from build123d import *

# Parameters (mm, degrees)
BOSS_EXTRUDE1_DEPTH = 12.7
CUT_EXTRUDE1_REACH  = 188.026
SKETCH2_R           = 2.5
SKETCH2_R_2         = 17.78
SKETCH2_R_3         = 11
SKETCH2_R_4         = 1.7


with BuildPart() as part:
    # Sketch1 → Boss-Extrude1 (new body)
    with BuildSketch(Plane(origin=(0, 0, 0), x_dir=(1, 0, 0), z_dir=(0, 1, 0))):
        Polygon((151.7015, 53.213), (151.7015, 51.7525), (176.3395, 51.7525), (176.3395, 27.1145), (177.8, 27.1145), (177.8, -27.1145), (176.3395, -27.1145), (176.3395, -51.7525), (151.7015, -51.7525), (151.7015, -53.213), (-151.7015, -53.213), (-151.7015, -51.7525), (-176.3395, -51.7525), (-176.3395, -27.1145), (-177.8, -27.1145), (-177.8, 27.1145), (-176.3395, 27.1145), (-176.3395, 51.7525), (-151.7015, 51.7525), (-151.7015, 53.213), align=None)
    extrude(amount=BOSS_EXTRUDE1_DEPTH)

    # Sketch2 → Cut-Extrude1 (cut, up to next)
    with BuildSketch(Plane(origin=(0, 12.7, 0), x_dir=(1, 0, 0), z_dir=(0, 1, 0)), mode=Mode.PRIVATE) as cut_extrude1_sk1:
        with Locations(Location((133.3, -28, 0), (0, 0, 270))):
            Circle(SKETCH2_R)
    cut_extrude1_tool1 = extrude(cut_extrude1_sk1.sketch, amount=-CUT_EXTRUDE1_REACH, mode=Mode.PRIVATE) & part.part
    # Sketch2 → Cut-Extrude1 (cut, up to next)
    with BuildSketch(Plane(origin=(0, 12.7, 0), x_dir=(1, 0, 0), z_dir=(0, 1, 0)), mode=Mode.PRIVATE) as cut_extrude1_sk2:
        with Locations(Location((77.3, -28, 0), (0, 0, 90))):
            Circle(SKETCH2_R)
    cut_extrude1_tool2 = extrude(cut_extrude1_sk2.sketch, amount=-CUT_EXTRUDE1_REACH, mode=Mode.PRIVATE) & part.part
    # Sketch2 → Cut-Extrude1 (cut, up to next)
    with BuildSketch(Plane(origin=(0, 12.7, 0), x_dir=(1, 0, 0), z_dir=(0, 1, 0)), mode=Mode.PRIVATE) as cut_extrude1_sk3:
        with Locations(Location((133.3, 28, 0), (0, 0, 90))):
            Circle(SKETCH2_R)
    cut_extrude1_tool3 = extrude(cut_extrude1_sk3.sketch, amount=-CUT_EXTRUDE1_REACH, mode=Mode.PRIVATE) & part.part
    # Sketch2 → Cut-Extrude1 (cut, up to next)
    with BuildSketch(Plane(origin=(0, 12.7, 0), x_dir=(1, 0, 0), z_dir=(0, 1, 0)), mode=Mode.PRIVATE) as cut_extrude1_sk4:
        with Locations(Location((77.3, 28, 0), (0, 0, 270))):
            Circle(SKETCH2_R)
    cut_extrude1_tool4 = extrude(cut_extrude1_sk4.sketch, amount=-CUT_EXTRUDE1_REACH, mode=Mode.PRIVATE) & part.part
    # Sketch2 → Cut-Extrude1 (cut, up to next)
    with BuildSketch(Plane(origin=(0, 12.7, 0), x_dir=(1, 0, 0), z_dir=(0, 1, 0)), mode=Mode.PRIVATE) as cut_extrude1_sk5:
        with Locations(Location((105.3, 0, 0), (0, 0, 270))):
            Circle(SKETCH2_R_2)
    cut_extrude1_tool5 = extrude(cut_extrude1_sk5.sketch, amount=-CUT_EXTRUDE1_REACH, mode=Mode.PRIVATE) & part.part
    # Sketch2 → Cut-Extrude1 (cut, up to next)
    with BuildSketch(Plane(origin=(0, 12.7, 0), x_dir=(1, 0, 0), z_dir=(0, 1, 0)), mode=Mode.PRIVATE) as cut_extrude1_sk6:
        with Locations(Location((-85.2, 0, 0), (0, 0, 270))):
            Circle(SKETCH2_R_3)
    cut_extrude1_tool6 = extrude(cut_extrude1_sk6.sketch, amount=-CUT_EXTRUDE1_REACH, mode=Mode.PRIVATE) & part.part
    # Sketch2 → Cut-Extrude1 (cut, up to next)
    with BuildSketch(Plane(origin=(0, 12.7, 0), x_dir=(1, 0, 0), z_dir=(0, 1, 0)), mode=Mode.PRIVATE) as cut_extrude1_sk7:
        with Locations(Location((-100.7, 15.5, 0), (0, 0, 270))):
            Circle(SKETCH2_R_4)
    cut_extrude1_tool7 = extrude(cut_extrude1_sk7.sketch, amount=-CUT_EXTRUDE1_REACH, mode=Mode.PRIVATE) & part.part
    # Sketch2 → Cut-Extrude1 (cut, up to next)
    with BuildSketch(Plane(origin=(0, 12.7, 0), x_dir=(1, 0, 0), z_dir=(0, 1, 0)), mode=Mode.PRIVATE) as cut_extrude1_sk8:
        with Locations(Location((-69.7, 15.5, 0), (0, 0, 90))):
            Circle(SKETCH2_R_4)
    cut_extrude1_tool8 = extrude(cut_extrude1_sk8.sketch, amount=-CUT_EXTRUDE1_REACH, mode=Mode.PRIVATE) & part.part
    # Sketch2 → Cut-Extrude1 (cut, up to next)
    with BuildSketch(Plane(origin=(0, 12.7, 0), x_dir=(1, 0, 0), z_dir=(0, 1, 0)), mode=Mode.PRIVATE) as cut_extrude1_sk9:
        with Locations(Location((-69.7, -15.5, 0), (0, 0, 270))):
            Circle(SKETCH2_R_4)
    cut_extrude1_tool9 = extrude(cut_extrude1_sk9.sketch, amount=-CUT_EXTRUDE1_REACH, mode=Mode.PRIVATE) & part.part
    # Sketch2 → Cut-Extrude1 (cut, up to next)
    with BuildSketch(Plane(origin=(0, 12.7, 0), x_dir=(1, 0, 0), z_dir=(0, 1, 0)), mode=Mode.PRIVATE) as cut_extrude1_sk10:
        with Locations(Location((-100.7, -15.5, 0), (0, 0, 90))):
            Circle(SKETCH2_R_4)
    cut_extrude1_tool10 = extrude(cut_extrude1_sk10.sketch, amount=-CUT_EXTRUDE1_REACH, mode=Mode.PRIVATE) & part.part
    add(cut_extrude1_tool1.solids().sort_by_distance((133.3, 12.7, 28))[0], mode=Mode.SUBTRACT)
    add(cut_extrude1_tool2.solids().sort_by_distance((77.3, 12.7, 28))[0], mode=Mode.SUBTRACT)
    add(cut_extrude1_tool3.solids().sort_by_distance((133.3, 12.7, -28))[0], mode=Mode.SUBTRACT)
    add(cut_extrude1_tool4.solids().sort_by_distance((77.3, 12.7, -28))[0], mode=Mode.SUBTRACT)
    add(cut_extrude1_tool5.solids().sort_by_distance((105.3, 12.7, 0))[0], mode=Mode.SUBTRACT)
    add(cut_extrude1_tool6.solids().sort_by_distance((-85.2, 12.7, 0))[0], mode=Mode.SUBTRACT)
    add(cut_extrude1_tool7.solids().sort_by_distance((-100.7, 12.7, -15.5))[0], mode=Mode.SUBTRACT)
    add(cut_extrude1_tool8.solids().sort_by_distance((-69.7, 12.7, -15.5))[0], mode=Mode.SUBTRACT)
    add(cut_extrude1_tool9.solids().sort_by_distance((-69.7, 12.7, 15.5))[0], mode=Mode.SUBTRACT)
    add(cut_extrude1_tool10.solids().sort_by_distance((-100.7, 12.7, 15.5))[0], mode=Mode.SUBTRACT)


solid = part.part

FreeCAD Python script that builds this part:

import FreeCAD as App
import Part
import Sketcher
from FreeCAD import Vector
Q = App.Units.Quantity


def add_polygon(sketch, points):
    """Adds a closed chain of lines whose ends are joined by coincident constraints."""
    first, n = sketch.GeometryCount, len(points)
    for a, b in zip(points, points[1:] + points[:1]):
        sketch.addGeometry(Part.LineSegment(App.Vector(*a, 0), App.Vector(*b, 0)), False)
    for i in range(n):
        sketch.addConstraint(Sketcher.Constraint("Coincident", first + i, 2, first + (i + 1) % n, 1))

doc = App.newDocument("Part")
body = doc.addObject("PartDesign::Body", "Body")

# Sketch on XZ plane
sketch1 = body.newObject("Sketcher::SketchObject", "Sketch")
sketch1.AttachmentSupport = (doc.getObject("XZ_Plane"), [""])
sketch1.MapMode = "FlatFace"
add_polygon(sketch1, [(151.7, -51.8), (151.7, -53.2), (-151.7, -53.2), (-151.7, -51.8), (-176.3, -51.8), (-176.3, -27.1), (-177.8, -27.1), (-177.8, 27.1), (-176.3, 27.1), (-176.3, 51.8), (-151.7, 51.8), (-151.7, 53.2), (151.7, 53.2), (151.7, 51.8), (176.3, 51.8), (176.3, 27.1), (177.8, 27.1), (177.8, -27.1), (176.3, -27.1), (176.3, -51.8)])  # lines 0-19
sketch1.addConstraint(Sketcher.Constraint("Vertical", 0))
sketch1.addConstraint(Sketcher.Constraint("Horizontal", 1))
sketch1.addConstraint(Sketcher.Constraint("Vertical", 2))
sketch1.addConstraint(Sketcher.Constraint("Horizontal", 3))
sketch1.addConstraint(Sketcher.Constraint("Vertical", 4))
sketch1.addConstraint(Sketcher.Constraint("Horizontal", 5))
sketch1.addConstraint(Sketcher.Constraint("Vertical", 6))
sketch1.addConstraint(Sketcher.Constraint("Horizontal", 7))
sketch1.addConstraint(Sketcher.Constraint("Vertical", 8))
sketch1.addConstraint(Sketcher.Constraint("Horizontal", 9))
sketch1.addConstraint(Sketcher.Constraint("Vertical", 10))
sketch1.addConstraint(Sketcher.Constraint("Horizontal", 11))
sketch1.addConstraint(Sketcher.Constraint("Vertical", 12))
sketch1.addConstraint(Sketcher.Constraint("Horizontal", 13))
sketch1.addConstraint(Sketcher.Constraint("Vertical", 14))
sketch1.addConstraint(Sketcher.Constraint("Horizontal", 15))
sketch1.addConstraint(Sketcher.Constraint("Vertical", 16))
sketch1.addConstraint(Sketcher.Constraint("Horizontal", 17))
sketch1.addConstraint(Sketcher.Constraint("Vertical", 18))
sketch1.addConstraint(Sketcher.Constraint("Horizontal", 19))
sketch1.addConstraint(Sketcher.Constraint("Symmetric", 0, 2, 10, 2, -1, 1))
sketch1.addConstraint(Sketcher.Constraint("Symmetric", 2, 2, 12, 2, -1, 1))
sketch1.addConstraint(Sketcher.Constraint("Symmetric", 4, 2, 14, 2, -1, 1))
sketch1.addConstraint(Sketcher.Constraint("Symmetric", 6, 2, 16, 2, -1, 1))
sketch1.addConstraint(Sketcher.Constraint("Symmetric", 8, 2, 18, 2, -1, 1))
sketch1.addConstraint(Sketcher.Constraint("Symmetric", 9, 2, 12, 2, -2))
sketch1.addConstraint(Sketcher.Constraint("Symmetric", 7, 2, 14, 2, -2))
sketch1.addConstraint(Sketcher.Constraint("Equal", 17, 0))
sketch1.addConstraint(Sketcher.Constraint("Equal", 19, 4))
sketch1.addConstraint(Sketcher.Constraint("DistanceX", 5, 2, -1, 1, Q("7 in")))
sketch1.addConstraint(Sketcher.Constraint("DistanceX", 3, 2, 3, 1, Q("0.97 in")))
sketch1.addConstraint(Sketcher.Constraint("DistanceX", 1, 2, 1, 1, Q("11.945 in")))
sketch1.addConstraint(Sketcher.Constraint("DistanceY", 6, 1, 6, 2, Q("2.135 in")))
pad1 = body.newObject("PartDesign::Pad", "Pad")
pad1.Profile = sketch1
pad1.Length = Q("0.5 in")
pad1.Reversed = True

# Sketch on XZ plane
sketch2 = body.newObject("Sketcher::SketchObject", "Sketch001")
sketch2.AttachmentSupport = (doc.getObject("XZ_Plane"), [""])
sketch2.MapMode = "FlatFace"
sketch2.AttachmentOffset = App.Placement(Vector(0, 0, -0.5 * 25.4), App.Rotation())
sketch2.addGeometry(Part.Circle(Vector(133.3, 28, 0), Vector(0, 0, 1), 2.5), False)
sketch2.addConstraint(Sketcher.Constraint("Diameter", 0, Q("5 mm")))
sketch2.addConstraint(Sketcher.Constraint("DistanceX", -1, 1, 0, 3, Q("133.3 mm")))
sketch2.addConstraint(Sketcher.Constraint("DistanceY", -1, 1, 0, 3, Q("28 mm")))
pocket1 = body.newObject("PartDesign::Pocket", "Pocket")
pocket1.Profile = sketch2
pocket1.Type = "UpToFirst"
pocket1.Reversed = True

# Sketch on XZ plane
sketch3 = body.newObject("Sketcher::SketchObject", "Sketch002")
sketch3.AttachmentSupport = (doc.getObject("XZ_Plane"), [""])
sketch3.MapMode = "FlatFace"
sketch3.AttachmentOffset = App.Placement(Vector(0, 0, -0.5 * 25.4), App.Rotation())
sketch3.addGeometry(Part.Circle(Vector(77.3, 28, 0), Vector(0, 0, 1), 2.5), False)
sketch3.addConstraint(Sketcher.Constraint("Diameter", 0, Q("5 mm")))
sketch3.addConstraint(Sketcher.Constraint("DistanceX", -1, 1, 0, 3, Q("77.3 mm")))
sketch3.addConstraint(Sketcher.Constraint("DistanceY", -1, 1, 0, 3, Q("28 mm")))
pocket2 = body.newObject("PartDesign::Pocket", "Pocket001")
pocket2.Profile = sketch3
pocket2.Type = "UpToFirst"
pocket2.Reversed = True

# Sketch on XZ plane
sketch4 = body.newObject("Sketcher::SketchObject", "Sketch003")
sketch4.AttachmentSupport = (doc.getObject("XZ_Plane"), [""])
sketch4.MapMode = "FlatFace"
sketch4.AttachmentOffset = App.Placement(Vector(0, 0, -0.5 * 25.4), App.Rotation())
sketch4.addGeometry(Part.Circle(Vector(133.3, -28, 0), Vector(0, 0, 1), 2.5), False)
sketch4.addConstraint(Sketcher.Constraint("Diameter", 0, Q("5 mm")))
sketch4.addConstraint(Sketcher.Constraint("DistanceX", -1, 1, 0, 3, Q("133.3 mm")))
sketch4.addConstraint(Sketcher.Constraint("DistanceY", 0, 3, -1, 1, Q("28 mm")))
pocket3 = body.newObject("PartDesign::Pocket", "Pocket002")
pocket3.Profile = sketch4
pocket3.Type = "UpToFirst"
pocket3.Reversed = True

# Sketch on XZ plane
sketch5 = body.newObject("Sketcher::SketchObject", "Sketch004")
sketch5.AttachmentSupport = (doc.getObject("XZ_Plane"), [""])
sketch5.MapMode = "FlatFace"
sketch5.AttachmentOffset = App.Placement(Vector(0, 0, -0.5 * 25.4), App.Rotation())
sketch5.addGeometry(Part.Circle(Vector(77.3, -28, 0), Vector(0, 0, 1), 2.5), False)
sketch5.addConstraint(Sketcher.Constraint("Diameter", 0, Q("5 mm")))
sketch5.addConstraint(Sketcher.Constraint("DistanceX", -1, 1, 0, 3, Q("77.3 mm")))
sketch5.addConstraint(Sketcher.Constraint("DistanceY", 0, 3, -1, 1, Q("28 mm")))
pocket4 = body.newObject("PartDesign::Pocket", "Pocket003")
pocket4.Profile = sketch5
pocket4.Type = "UpToFirst"
pocket4.Reversed = True

# Sketch on XZ plane
sketch6 = body.newObject("Sketcher::SketchObject", "Sketch005")
sketch6.AttachmentSupport = (doc.getObject("XZ_Plane"), [""])
sketch6.MapMode = "FlatFace"
sketch6.AttachmentOffset = App.Placement(Vector(0, 0, -0.5 * 25.4), App.Rotation())
sketch6.addGeometry(Part.Circle(Vector(105, 0, 0), Vector(0, 0, 1), 18), False)
sketch6.addConstraint(Sketcher.Constraint("PointOnObject", 0, 3, -1))
sketch6.addConstraint(Sketcher.Constraint("Diameter", 0, Q("1.4 in")))
sketch6.addConstraint(Sketcher.Constraint("DistanceX", -1, 1, 0, 3, Q("105.3 mm")))
pocket5 = body.newObject("PartDesign::Pocket", "Pocket004")
pocket5.Profile = sketch6
pocket5.Type = "UpToFirst"
pocket5.Reversed = True

# Sketch on XZ plane
sketch7 = body.newObject("Sketcher::SketchObject", "Sketch006")
sketch7.AttachmentSupport = (doc.getObject("XZ_Plane"), [""])
sketch7.MapMode = "FlatFace"
sketch7.AttachmentOffset = App.Placement(Vector(0, 0, -0.5 * 25.4), App.Rotation())
sketch7.addGeometry(Part.Circle(Vector(-85, 0, 0), Vector(0, 0, 1), 11), False)
sketch7.addConstraint(Sketcher.Constraint("PointOnObject", 0, 3, -1))
sketch7.addConstraint(Sketcher.Constraint("Diameter", 0, Q("22 mm")))
sketch7.addConstraint(Sketcher.Constraint("DistanceX", 0, 3, -1, 1, Q("85.2 mm")))
pocket6 = body.newObject("PartDesign::Pocket", "Pocket005")
pocket6.Profile = sketch7
pocket6.Type = "UpToFirst"
pocket6.Reversed = True

# Sketch on XZ plane
sketch8 = body.newObject("Sketcher::SketchObject", "Sketch007")
sketch8.AttachmentSupport = (doc.getObject("XZ_Plane"), [""])
sketch8.MapMode = "FlatFace"
sketch8.AttachmentOffset = App.Placement(Vector(0, 0, -0.5 * 25.4), App.Rotation())
sketch8.addGeometry(Part.Circle(Vector(-100.7, -15.5, 0), Vector(0, 0, 1), 1.7), False)
sketch8.addConstraint(Sketcher.Constraint("Diameter", 0, Q("3.4 mm")))
sketch8.addConstraint(Sketcher.Constraint("DistanceX", 0, 3, -1, 1, Q("100.7 mm")))
sketch8.addConstraint(Sketcher.Constraint("DistanceY", 0, 3, -1, 1, Q("15.5 mm")))
pocket7 = body.newObject("PartDesign::Pocket", "Pocket006")
pocket7.Profile = sketch8
pocket7.Type = "UpToFirst"
pocket7.Reversed = True

# Sketch on XZ plane
sketch9 = body.newObject("Sketcher::SketchObject", "Sketch008")
sketch9.AttachmentSupport = (doc.getObject("XZ_Plane"), [""])
sketch9.MapMode = "FlatFace"
sketch9.AttachmentOffset = App.Placement(Vector(0, 0, -0.5 * 25.4), App.Rotation())
sketch9.addGeometry(Part.Circle(Vector(-69.7, -15.5, 0), Vector(0, 0, 1), 1.7), False)
sketch9.addConstraint(Sketcher.Constraint("Diameter", 0, Q("3.4 mm")))
sketch9.addConstraint(Sketcher.Constraint("DistanceX", 0, 3, -1, 1, Q("69.7 mm")))
sketch9.addConstraint(Sketcher.Constraint("DistanceY", 0, 3, -1, 1, Q("15.5 mm")))
pocket8 = body.newObject("PartDesign::Pocket", "Pocket007")
pocket8.Profile = sketch9
pocket8.Type = "UpToFirst"
pocket8.Reversed = True

# Sketch on XZ plane
sketch10 = body.newObject("Sketcher::SketchObject", "Sketch009")
sketch10.AttachmentSupport = (doc.getObject("XZ_Plane"), [""])
sketch10.MapMode = "FlatFace"
sketch10.AttachmentOffset = App.Placement(Vector(0, 0, -0.5 * 25.4), App.Rotation())
sketch10.addGeometry(Part.Circle(Vector(-69.7, 15.5, 0), Vector(0, 0, 1), 1.7), False)
sketch10.addConstraint(Sketcher.Constraint("Diameter", 0, Q("3.4 mm")))
sketch10.addConstraint(Sketcher.Constraint("DistanceX", 0, 3, -1, 1, Q("69.7 mm")))
sketch10.addConstraint(Sketcher.Constraint("DistanceY", -1, 1, 0, 3, Q("15.5 mm")))
pocket9 = body.newObject("PartDesign::Pocket", "Pocket008")
pocket9.Profile = sketch10
pocket9.Type = "UpToFirst"
pocket9.Reversed = True

# Sketch on XZ plane
sketch11 = body.newObject("Sketcher::SketchObject", "Sketch010")
sketch11.AttachmentSupport = (doc.getObject("XZ_Plane"), [""])
sketch11.MapMode = "FlatFace"
sketch11.AttachmentOffset = App.Placement(Vector(0, 0, -0.5 * 25.4), App.Rotation())
sketch11.addGeometry(Part.Circle(Vector(-100.7, 15.5, 0), Vector(0, 0, 1), 1.7), False)
sketch11.addConstraint(Sketcher.Constraint("Diameter", 0, Q("3.4 mm")))
sketch11.addConstraint(Sketcher.Constraint("DistanceX", 0, 3, -1, 1, Q("100.7 mm")))
sketch11.addConstraint(Sketcher.Constraint("DistanceY", -1, 1, 0, 3, Q("15.5 mm")))
pocket10 = body.newObject("PartDesign::Pocket", "Pocket009")
pocket10.Profile = sketch11
pocket10.Type = "UpToFirst"
pocket10.Reversed = True

doc.recompute()
